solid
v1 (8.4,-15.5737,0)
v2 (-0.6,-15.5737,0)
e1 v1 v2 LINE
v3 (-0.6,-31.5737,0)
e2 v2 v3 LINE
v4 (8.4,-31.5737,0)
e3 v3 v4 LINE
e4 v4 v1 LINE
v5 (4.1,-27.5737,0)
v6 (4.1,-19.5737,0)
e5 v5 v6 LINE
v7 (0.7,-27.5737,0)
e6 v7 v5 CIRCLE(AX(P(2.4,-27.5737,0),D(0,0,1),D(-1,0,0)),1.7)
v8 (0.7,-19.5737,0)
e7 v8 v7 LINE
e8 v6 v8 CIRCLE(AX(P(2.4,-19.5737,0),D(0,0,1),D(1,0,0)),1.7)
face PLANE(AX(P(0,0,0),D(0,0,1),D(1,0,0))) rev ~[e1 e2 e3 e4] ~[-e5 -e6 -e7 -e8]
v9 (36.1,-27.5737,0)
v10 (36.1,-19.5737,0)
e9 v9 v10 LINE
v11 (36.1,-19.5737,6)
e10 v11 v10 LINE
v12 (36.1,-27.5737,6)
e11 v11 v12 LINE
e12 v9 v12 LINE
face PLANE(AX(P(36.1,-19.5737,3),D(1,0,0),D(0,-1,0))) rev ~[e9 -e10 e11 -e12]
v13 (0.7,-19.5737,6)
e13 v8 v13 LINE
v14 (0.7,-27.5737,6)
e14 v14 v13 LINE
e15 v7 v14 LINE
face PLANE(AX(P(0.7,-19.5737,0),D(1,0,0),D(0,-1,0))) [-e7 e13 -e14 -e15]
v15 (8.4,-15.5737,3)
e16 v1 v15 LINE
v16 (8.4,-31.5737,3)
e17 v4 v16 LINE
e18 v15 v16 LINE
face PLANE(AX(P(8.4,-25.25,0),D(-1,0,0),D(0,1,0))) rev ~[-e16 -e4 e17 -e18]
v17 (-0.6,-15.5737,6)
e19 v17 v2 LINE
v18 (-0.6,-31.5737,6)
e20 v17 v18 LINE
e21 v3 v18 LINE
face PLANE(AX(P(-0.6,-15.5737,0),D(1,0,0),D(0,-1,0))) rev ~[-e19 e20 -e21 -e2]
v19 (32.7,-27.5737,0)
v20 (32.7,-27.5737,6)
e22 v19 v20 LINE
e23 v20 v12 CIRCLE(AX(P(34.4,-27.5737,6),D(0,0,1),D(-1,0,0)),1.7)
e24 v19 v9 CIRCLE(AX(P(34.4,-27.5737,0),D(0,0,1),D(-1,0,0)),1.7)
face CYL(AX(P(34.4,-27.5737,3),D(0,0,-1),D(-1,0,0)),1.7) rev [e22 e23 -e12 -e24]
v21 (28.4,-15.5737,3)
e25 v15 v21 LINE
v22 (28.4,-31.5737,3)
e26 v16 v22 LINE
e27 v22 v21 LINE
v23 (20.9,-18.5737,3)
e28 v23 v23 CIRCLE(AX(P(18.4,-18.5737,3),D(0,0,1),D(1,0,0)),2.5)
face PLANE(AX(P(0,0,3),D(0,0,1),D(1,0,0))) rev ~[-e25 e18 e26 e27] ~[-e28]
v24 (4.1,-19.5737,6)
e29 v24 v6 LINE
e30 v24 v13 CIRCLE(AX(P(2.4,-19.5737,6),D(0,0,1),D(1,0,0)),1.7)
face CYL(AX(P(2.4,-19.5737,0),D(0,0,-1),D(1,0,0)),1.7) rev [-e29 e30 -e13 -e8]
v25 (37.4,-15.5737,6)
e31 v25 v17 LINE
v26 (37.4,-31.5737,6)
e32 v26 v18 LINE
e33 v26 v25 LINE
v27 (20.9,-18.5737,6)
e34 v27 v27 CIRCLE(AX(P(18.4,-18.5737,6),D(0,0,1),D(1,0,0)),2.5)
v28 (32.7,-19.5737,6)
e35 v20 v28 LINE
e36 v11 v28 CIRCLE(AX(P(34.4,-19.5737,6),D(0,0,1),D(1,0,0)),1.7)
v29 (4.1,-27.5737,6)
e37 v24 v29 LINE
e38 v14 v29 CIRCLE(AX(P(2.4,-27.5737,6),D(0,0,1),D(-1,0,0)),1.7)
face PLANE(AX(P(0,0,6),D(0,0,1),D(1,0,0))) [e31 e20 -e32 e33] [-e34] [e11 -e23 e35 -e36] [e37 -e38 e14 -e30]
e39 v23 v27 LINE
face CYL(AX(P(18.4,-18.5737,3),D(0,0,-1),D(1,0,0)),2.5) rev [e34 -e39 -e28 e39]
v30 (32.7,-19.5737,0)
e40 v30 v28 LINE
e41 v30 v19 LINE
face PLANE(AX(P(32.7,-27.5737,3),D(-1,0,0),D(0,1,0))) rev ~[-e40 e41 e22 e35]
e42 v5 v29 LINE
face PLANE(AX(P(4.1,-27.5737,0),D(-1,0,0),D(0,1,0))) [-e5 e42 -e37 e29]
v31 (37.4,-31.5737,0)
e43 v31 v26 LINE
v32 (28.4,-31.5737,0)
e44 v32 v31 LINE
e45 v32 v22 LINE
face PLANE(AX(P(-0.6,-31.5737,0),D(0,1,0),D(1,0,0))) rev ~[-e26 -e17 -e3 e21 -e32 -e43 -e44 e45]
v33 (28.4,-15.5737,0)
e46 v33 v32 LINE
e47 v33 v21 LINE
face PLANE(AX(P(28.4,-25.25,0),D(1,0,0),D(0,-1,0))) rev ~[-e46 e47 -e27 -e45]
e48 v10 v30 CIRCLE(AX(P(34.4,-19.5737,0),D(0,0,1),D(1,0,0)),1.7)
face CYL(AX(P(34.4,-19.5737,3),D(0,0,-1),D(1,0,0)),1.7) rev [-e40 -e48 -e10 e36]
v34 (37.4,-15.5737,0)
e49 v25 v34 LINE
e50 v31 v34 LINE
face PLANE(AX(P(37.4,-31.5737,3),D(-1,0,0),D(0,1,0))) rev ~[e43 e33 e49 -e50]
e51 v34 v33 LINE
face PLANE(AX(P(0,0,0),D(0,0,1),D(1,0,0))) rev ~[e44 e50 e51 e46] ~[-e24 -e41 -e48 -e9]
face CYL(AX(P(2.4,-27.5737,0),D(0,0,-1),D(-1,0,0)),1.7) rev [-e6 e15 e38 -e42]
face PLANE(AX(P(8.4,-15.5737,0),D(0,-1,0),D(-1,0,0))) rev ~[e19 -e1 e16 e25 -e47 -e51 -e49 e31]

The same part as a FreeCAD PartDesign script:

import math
import FreeCAD as App
import Part
import Sketcher
from FreeCAD import Vector
Q = App.Units.Quantity

doc = App.newDocument("Part")
body = doc.addObject("PartDesign::Body", "Body")
body.AllowCompound = True

sketch1 = doc.addObject("Sketcher::SketchObject", "Sketch")
body.addObject(sketch1)
sketch1.AttachmentSupport = (doc.XY_Plane, [""])
sketch1.MapMode = "FlatFace"
sketch1.addGeometry([
    Part.LineSegment(Vector(-0.6, -15.6, 0), Vector(-0.6, -31.6, 0)),
    Part.LineSegment(Vector(-0.6, -31.6, 0), Vector(8.4, -31.6, 0)),
    Part.LineSegment(Vector(8.4, -31.6, 0), Vector(8.4, -15.6, 0)),
    Part.LineSegment(Vector(8.4, -15.6, 0), Vector(-0.6, -15.6, 0)),
    Part.LineSegment(Vector(4.1, -19.6, 0), Vector(4.1, -27.6, 0)),
    Part.ArcOfCircle(Part.Circle(Vector(2.4, -27.6, 0), Vector(0, 0, 1), 1.7), math.radians(180), math.radians(360)),
    Part.LineSegment(Vector(0.7, -27.6, 0), Vector(0.7, -19.6, 0)),
    Part.ArcOfCircle(Part.Circle(Vector(2.4, -19.6, 0), Vector(0, 0, 1), 1.7), math.radians(0), math.radians(180)),
    Part.LineSegment(Vector(37.4, -31.6, 0), Vector(37.4, -15.6, 0)),
    Part.LineSegment(Vector(37.4, -15.6, 0), Vector(28.4, -15.6, 0)),
    Part.LineSegment(Vector(28.4, -15.6, 0), Vector(28.4, -31.6, 0)),
    Part.LineSegment(Vector(28.4, -31.6, 0), Vector(37.4, -31.6, 0)),
    Part.LineSegment(Vector(32.7, -27.6, 0), Vector(32.7, -19.6, 0)),
    Part.ArcOfCircle(Part.Circle(Vector(34.4, -19.6, 0), Vector(0, 0, 1), 1.7), math.radians(0), math.radians(180)),
    Part.LineSegment(Vector(36.1, -19.6, 0), Vector(36.1, -27.6, 0)),
    Part.ArcOfCircle(Part.Circle(Vector(34.4, -27.6, 0), Vector(0, 0, 1), 1.7), math.radians(180), math.radians(360)),
], False)
sketch1.addConstraint([
    Sketcher.Constraint("Coincident", 0, 2, 1, 1),
    Sketcher.Constraint("Coincident", 1, 2, 2, 1),
    Sketcher.Constraint("Coincident", 2, 2, 3, 1),
    Sketcher.Constraint("Coincident", 3, 2, 0, 1),
    Sketcher.Constraint("Tangent", 4, 2, 5, 2),
    Sketcher.Constraint("Tangent", 5, 1, 6, 1),
    Sketcher.Constraint("Tangent", 6, 2, 7, 2),
    Sketcher.Constraint("Tangent", 7, 1, 4, 1),
    Sketcher.Constraint("Coincident", 8, 2, 9, 1),
    Sketcher.Constraint("Coincident", 9, 2, 10, 1),
    Sketcher.Constraint("Coincident", 10, 2, 11, 1),
    Sketcher.Constraint("Coincident", 11, 2, 8, 1),
    Sketcher.Constraint("Tangent", 12, 2, 13, 2),
    Sketcher.Constraint("Tangent", 13, 1, 14, 1),
    Sketcher.Constraint("Tangent", 14, 2, 15, 2),
    Sketcher.Constraint("Tangent", 15, 1, 12, 1),
    Sketcher.Constraint("Vertical", 0),
    Sketcher.Constraint("Horizontal", 1),
    Sketcher.Constraint("Vertical", 2),
    Sketcher.Constraint("Horizontal", 3),
    Sketcher.Constraint("Vertical", 4),
    Sketcher.Constraint("Vertical", 6),
    Sketcher.Constraint("Vertical", 8),
    Sketcher.Constraint("Horizontal", 9),
    Sketcher.Constraint("Vertical", 10),
    Sketcher.Constraint("Horizontal", 11),
    Sketcher.Constraint("Vertical", 12),
    Sketcher.Constraint("Vertical", 14),
    Sketcher.Constraint("Equal", 7, 13),
    Sketcher.Constraint("Horizontal", 7, 3, 13, 3),
    Sketcher.Constraint("Horizontal", 5, 3, 15, 3),
    Sketcher.Constraint("Horizontal", 3, 2, 8, 2),
    Sketcher.Constraint("Horizontal", 1, 2, 10, 2),
    Sketcher.Constraint("Equal", 3, 9),
    Sketcher.Constraint("Radius", 5, Q("1.7 mm")),
    Sketcher.Constraint("DistanceX", 1, 1, 1, 2, Q("9 mm")),
    Sketcher.Constraint("DistanceY", 0, 2, 5, 3, Q("4 mm")),
    Sketcher.Constraint("DistanceY", 7, 3, 2, 2, Q("4 mm")),
    Sketcher.Constraint("DistanceY", 0, 2, 0, 1, Q("16 mm")),
    Sketcher.Constraint("DistanceX", 7, 3, 13, 3, Q("32 mm")),
    Sketcher.Constraint("DistanceX", 0, 2, 5, 3, Q("3 mm")),
    Sketcher.Constraint("DistanceX", 13, 3, 8, 2, Q("3 mm")),
    Sketcher.Constraint("DistanceX", -1, 1, 5, 3, Q("2.4 mm")),
    Sketcher.Constraint("DistanceY", 5, 3, -1, 1, Q("27.5737 mm")),
])
pad1 = doc.addObject("PartDesign::Pad", "Pad")
body.addObject(pad1)
pad1.Profile = sketch1
pad1.Length = 3

sketch2 = doc.addObject("Sketcher::SketchObject", "Sketch001")
body.addObject(sketch2)
sketch2.AttachmentSupport = (doc.XY_Plane, [""])
sketch2.MapMode = "FlatFace"
sketch2.AttachmentOffset = App.Placement(Vector(0, 0, 3), App.Rotation())
sketch2.addGeometry([
    Part.LineSegment(Vector(-0.6, -31.6, 0), Vector(37.4, -31.6, 0)),
    Part.LineSegment(Vector(37.4, -31.6, 0), Vector(37.4, -15.6, 0)),
    Part.LineSegment(Vector(37.4, -15.6, 0), Vector(-0.6, -15.6, 0)),
    Part.LineSegment(Vector(-0.6, -15.6, 0), Vector(-0.6, -31.6, 0)),
    Part.ArcOfCircle(Part.Circle(Vector(2.4, -27.6, 0), Vector(0, 0, 1), 1.7), math.radians(180), math.radians(360)),
    Part.LineSegment(Vector(0.7, -27.6, 0), Vector(0.7, -19.6, 0)),
    Part.ArcOfCircle(Part.Circle(Vector(2.4, -19.6, 0), Vector(0, 0, 1), 1.7), math.radians(0), math.radians(180)),
    Part.LineSegment(Vector(4.1, -19.6, 0), Vector(4.1, -27.6, 0)),
    Part.Circle(Vector(18.4, -18.6, 0), Vector(0, 0, 1), 2.5),
    Part.LineSegment(Vector(36.1, -19.6, 0), Vector(36.1, -27.6, 0)),
    Part.ArcOfCircle(Part.Circle(Vector(34.4, -27.6, 0), Vector(0, 0, 1), 1.7), math.radians(180), math.radians(360)),
    Part.LineSegment(Vector(32.7, -27.6, 0), Vector(32.7, -19.6, 0)),
    Part.ArcOfCircle(Part.Circle(Vector(34.4, -19.6, 0), Vector(0, 0, 1), 1.7), math.radians(0), math.radians(180)),
], False)
sketch2.addConstraint([
    Sketcher.Constraint("Coincident", 0, 2, 1, 1),
    Sketcher.Constraint("Coincident", 1, 2, 2, 1),
    Sketcher.Constraint("Coincident", 2, 2, 3, 1),
    Sketcher.Constraint("Coincident", 3, 2, 0, 1),
    Sketcher.Constraint("Tangent", 4, 1, 5, 1),
    Sketcher.Constraint("Tangent", 5, 2, 6, 2),
    Sketcher.Constraint("Tangent", 6, 1, 7, 1),
    Sketcher.Constraint("Tangent", 7, 2, 4, 2),
    Sketcher.Constraint("Tangent", 9, 2, 10, 2),
    Sketcher.Constraint("Tangent", 10, 1, 11, 1),
    Sketcher.Constraint("Tangent", 11, 2, 12, 2),
    Sketcher.Constraint("Tangent", 12, 1, 9, 1),
    Sketcher.Constraint("Horizontal", 0),
    Sketcher.Constraint("Vertical", 1),
    Sketcher.Constraint("Horizontal", 2),
    Sketcher.Constraint("Vertical", 3),
    Sketcher.Constraint("Vertical", 5),
    Sketcher.Constraint("Vertical", 7),
    Sketcher.Constraint("Vertical", 9),
    Sketcher.Constraint("Vertical", 11),
    Sketcher.Constraint("Equal", 6, 10),
    Sketcher.Constraint("Horizontal", 4, 3, 10, 3),
    Sketcher.Constraint("Horizontal", 6, 3, 12, 3),
    Sketcher.Constraint("Diameter", 8, Q("5 mm")),
    Sketcher.Constraint("DistanceX", 10, 3, 0, 2, Q("3 mm")),
    Sketcher.Constraint("DistanceY", 8, 3, 1, 2, Q("3 mm")),
    Sketcher.Constraint("DistanceX", 2, 2, 6, 3, Q("3 mm")),
    Sketcher.Constraint("Radius", 4, Q("1.7 mm")),
    Sketcher.Constraint("DistanceX", 0, 1, 0, 2, Q("38 mm")),
    Sketcher.Constraint("DistanceY", 1, 1, 1, 2, Q("16 mm")),
    Sketcher.Constraint("DistanceY", 5, 1, 5, 2, Q("8 mm")),
    Sketcher.Constraint("DistanceX", 6, 3, 8, 3, Q("16 mm")),
    Sketcher.Constraint("DistanceY", 6, 3, 8, 3, Q("1 mm")),
    Sketcher.Constraint("DistanceX", -1, 1, 4, 3, Q("2.4 mm")),
    Sketcher.Constraint("DistanceY", 4, 3, -1, 1, Q("27.5737 mm")),
])
pad2 = doc.addObject("PartDesign::Pad", "Pad001")
body.addObject(pad2)
pad2.Profile = sketch2
pad2.Length = 3

doc.recompute()
